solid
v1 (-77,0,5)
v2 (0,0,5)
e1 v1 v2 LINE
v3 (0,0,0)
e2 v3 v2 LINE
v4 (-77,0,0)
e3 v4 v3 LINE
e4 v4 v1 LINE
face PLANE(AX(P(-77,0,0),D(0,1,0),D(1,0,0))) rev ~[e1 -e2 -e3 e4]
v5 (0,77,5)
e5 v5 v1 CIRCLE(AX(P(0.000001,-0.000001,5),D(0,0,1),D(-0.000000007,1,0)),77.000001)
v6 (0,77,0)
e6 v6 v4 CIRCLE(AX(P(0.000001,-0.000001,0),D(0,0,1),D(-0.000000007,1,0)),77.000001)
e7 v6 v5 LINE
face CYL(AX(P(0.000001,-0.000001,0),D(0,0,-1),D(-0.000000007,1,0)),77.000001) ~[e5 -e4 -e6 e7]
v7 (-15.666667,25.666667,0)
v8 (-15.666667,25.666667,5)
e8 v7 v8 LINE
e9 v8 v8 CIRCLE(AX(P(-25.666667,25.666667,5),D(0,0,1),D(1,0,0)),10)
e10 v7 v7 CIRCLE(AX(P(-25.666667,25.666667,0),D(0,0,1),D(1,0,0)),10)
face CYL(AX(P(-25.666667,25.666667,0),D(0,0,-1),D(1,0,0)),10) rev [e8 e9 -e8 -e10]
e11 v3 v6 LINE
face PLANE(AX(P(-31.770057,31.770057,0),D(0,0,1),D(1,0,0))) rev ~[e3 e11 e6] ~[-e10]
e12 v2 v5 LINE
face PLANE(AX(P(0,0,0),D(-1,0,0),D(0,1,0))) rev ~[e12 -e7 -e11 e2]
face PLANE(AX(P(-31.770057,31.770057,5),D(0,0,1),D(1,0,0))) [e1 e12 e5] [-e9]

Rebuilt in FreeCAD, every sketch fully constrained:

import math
import FreeCAD as App
import Part
import Sketcher

doc = App.newDocument("Part")
params = doc.addObject("Spreadsheet::Sheet", "Params")
for row, (alias, value) in enumerate([
    ("sketch1_diameter", "20 mm"),
    ("sketch1_radius", "77.000001 mm"),
    ("pad1_length", "5 mm"),
], start=1):
    params.set(f"A{row}", alias)
    params.set(f"B{row}", "=" + value)
    params.setAlias(f"B{row}", alias)

body = doc.addObject("PartDesign::Body", "Body")

# Sketch on XY plane
sketch1 = doc.addObject("Sketcher::SketchObject", "Sketch")
body.addObject(sketch1)
sketch1.AttachmentSupport = (doc.XY_Plane, [""])
sketch1.MapMode = "FlatFace"
sketch1.addGeometry([
    Part.LineSegment(App.Vector(0, 0, 0), App.Vector(0, 77, 0)),
    Part.ArcOfCircle(Part.Circle(App.Vector(0, 0, 0), App.Vector(0, 0, 1), 77), math.radians(90), math.radians(180)),
    Part.LineSegment(App.Vector(-77, 0, 0), App.Vector(0, 0, 0)),
    Part.Circle(App.Vector(-26, 26, 0), App.Vector(0, 0, 1), 10),
], False)
sketch1.addConstraint([
    Sketcher.Constraint("Coincident", 0, 2, 1, 1),
    Sketcher.Constraint("Coincident", 1, 2, 2, 1),
    Sketcher.Constraint("Coincident", 2, 2, 0, 1),
    Sketcher.Constraint("Vertical", 0),
    Sketcher.Constraint("Horizontal", 2),
    Sketcher.Constraint("Coincident", 1, 3, -1, 1),
    Sketcher.Constraint("Coincident", 2, 2, -1, 1),
    Sketcher.Constraint("Diameter", 3, 20.0),
    Sketcher.Constraint("Radius", 1, 77.000001),
    Sketcher.Constraint("DistanceX", 3, 3, -1, 1, 25.666667),
    Sketcher.Constraint("DistanceY", -1, 1, 3, 3, 25.666667),
])
sketch1.setExpression("Constraints[7]", "Params.sketch1_diameter")
sketch1.setExpression("Constraints[8]", "Params.sketch1_radius")
pad1 = doc.addObject("PartDesign::Pad", "Pad")
body.addObject(pad1)
pad1.Profile = sketch1
pad1.setExpression("Length", "Params.pad1_length")

doc.recompute()
